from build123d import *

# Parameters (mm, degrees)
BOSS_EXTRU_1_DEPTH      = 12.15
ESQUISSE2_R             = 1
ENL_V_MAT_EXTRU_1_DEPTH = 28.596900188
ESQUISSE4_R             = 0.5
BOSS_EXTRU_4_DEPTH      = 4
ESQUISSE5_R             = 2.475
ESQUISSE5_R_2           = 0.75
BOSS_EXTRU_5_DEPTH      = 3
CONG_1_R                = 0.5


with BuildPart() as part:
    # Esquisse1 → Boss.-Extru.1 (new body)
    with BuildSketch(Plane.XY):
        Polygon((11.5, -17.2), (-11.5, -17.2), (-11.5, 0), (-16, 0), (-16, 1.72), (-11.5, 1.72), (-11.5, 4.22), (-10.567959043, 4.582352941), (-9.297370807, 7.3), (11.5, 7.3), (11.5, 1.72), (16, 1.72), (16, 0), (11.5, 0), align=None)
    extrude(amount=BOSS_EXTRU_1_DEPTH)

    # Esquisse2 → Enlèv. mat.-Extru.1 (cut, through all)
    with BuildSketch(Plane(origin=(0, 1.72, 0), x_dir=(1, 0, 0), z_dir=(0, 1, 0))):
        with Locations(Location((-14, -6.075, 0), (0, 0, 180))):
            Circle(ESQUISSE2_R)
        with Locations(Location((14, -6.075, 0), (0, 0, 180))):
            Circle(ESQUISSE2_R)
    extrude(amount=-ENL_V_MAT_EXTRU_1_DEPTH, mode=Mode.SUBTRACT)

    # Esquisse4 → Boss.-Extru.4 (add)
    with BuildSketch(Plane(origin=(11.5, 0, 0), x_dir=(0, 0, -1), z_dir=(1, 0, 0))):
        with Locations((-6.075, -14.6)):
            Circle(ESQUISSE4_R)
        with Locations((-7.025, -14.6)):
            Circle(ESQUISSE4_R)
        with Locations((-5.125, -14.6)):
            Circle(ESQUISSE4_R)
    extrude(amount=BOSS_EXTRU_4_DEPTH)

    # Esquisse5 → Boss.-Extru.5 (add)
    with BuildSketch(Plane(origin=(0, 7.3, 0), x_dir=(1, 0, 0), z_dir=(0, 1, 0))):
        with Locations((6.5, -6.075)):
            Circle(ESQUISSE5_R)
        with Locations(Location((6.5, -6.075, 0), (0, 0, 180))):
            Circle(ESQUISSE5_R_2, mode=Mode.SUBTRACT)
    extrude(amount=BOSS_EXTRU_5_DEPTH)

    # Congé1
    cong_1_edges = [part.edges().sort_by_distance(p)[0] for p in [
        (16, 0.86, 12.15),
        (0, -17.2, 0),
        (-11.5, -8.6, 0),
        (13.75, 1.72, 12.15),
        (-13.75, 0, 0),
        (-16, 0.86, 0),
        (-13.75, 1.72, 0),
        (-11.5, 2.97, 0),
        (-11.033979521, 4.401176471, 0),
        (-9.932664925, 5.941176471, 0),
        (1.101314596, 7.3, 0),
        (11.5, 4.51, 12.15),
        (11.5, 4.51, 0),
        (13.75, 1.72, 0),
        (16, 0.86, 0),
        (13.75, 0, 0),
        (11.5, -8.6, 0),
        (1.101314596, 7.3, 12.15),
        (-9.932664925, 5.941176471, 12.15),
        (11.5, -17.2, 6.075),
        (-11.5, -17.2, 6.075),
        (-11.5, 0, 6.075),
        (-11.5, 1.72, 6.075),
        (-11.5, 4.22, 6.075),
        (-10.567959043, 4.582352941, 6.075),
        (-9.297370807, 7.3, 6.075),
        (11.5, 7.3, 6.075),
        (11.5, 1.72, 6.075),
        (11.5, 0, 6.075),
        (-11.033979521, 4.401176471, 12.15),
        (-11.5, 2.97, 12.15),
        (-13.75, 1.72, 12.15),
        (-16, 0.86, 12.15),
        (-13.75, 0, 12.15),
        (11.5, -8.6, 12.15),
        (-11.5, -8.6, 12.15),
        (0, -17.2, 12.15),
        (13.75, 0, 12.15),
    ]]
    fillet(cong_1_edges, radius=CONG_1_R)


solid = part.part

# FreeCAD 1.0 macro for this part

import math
import FreeCAD as App
import Part
import Sketcher

V = App.Vector
Q = App.Units.Quantity


def edges_at(feature, points):
    """Names of the edges that pass closest to the given points."""
    edges = feature.Shape.Edges
    near = lambda p: min(range(len(edges)), key=lambda i: edges[i].distToShape(Part.Vertex(*p))[0])
    return sorted({f"Edge{near(p) + 1}" for p in points})

doc = App.newDocument("Part")
body = doc.addObject("PartDesign::Body", "Body")

# Sketch on XY plane
sketch1 = body.newObject("Sketcher::SketchObject", "Sketch")
sketch1.AttachmentSupport = (doc.getObject("XY_Plane"), [""])
sketch1.MapMode = "FlatFace"
sketch1.addGeometry([
    Part.LineSegment(V(-11.5, -17.2, 0), V(11.5, -17.2, 0)),  # 0
    Part.LineSegment(V(11.5, -17.2, 0), V(11.5, 0, 0)),  # 1
    Part.LineSegment(V(11.5, 0, 0), V(16, 0, 0)),  # 2
    Part.LineSegment(V(16, 0, 0), V(16, 1.7, 0)),  # 3
    Part.LineSegment(V(16, 1.7, 0), V(11.5, 1.7, 0)),  # 4
    Part.LineSegment(V(11.5, 1.7, 0), V(11.5, 7.3, 0)),  # 5
    Part.LineSegment(V(11.5, 7.3, 0), V(-9.3, 7.3, 0)),  # 6
    Part.LineSegment(V(-9.3, 7.3, 0), V(-10.6, 4.6, 0)),  # 7
    Part.LineSegment(V(-10.6, 4.6, 0), V(-11.5, 4.2, 0)),  # 8
    Part.LineSegment(V(-11.5, 4.2, 0), V(-11.5, 1.7, 0)),  # 9
    Part.LineSegment(V(-11.5, 1.7, 0), V(-16, 1.7, 0)),  # 10
    Part.LineSegment(V(-16, 1.7, 0), V(-16, 0, 0)),  # 11
    Part.LineSegment(V(-16, 0, 0), V(-11.5, 0, 0)),  # 12
    Part.LineSegment(V(-11.5, 0, 0), V(-11.5, -17.2, 0)),  # 13
], False)
sketch1.addConstraint([
    Sketcher.Constraint("Coincident", 0, 2, 1, 1),
    Sketcher.Constraint("Coincident", 1, 2, 2, 1),
    Sketcher.Constraint("Coincident", 2, 2, 3, 1),
    Sketcher.Constraint("Coincident", 3, 2, 4, 1),
    Sketcher.Constraint("Coincident", 4, 2, 5, 1),
    Sketcher.Constraint("Coincident", 5, 2, 6, 1),
    Sketcher.Constraint("Coincident", 6, 2, 7, 1),
    Sketcher.Constraint("Coincident", 7, 2, 8, 1),
    Sketcher.Constraint("Coincident", 8, 2, 9, 1),
    Sketcher.Constraint("Coincident", 9, 2, 10, 1),
    Sketcher.Constraint("Coincident", 10, 2, 11, 1),
    Sketcher.Constraint("Coincident", 11, 2, 12, 1),
    Sketcher.Constraint("Coincident", 12, 2, 13, 1),
    Sketcher.Constraint("Coincident", 13, 2, 0, 1),
    Sketcher.Constraint("Horizontal", 0),
    Sketcher.Constraint("Vertical", 1),
    Sketcher.Constraint("Horizontal", 2),
    Sketcher.Constraint("Vertical", 3),
    Sketcher.Constraint("Horizontal", 4),
    Sketcher.Constraint("Vertical", 5),
    Sketcher.Constraint("Horizontal", 6),
    Sketcher.Constraint("Vertical", 9),
    Sketcher.Constraint("Horizontal", 10),
    Sketcher.Constraint("Vertical", 11),
    Sketcher.Constraint("Horizontal", 12),
    Sketcher.Constraint("Vertical", 13),
    Sketcher.Constraint("Symmetric", 2, 2, 11, 2, -1, 1),
    Sketcher.Constraint("Symmetric", 4, 2, 9, 2, -2),
    Sketcher.Constraint("Symmetric", 1, 2, 12, 2, -2),
    Sketcher.Constraint("Vertical", 1, 2, 4, 2),
    Sketcher.Constraint("DistanceX", 0, 1, 0, 2, Q("23 mm")),
    Sketcher.Constraint("Distance", 7, Q("3 mm")),
    Sketcher.Constraint("Distance", 8, Q("1 mm")),
    Sketcher.Constraint("DistanceX", 2, 1, 2, 2, Q("4.5 mm")),
    Sketcher.Constraint("DistanceY", 1, 1, 1, 2, Q("17.2 mm")),
    Sketcher.Constraint("DistanceY", 9, 2, 9, 1, Q("2.5 mm")),
    Sketcher.Constraint("DistanceY", 3, 1, 3, 2, Q("1.72 mm")),
    Sketcher.Constraint("DistanceY", 5, 1, 5, 2, Q("5.58 mm")),
    Sketcher.Constraint("DistanceX", 6, 2, 6, 1, Q("20.797371 mm")),
])
pad1 = body.newObject("PartDesign::Pad", "Pad")
pad1.Profile = sketch1
pad1.Length = 12.15

# Sketch on XZ plane
sketch2 = body.newObject("Sketcher::SketchObject", "Sketch001")
sketch2.AttachmentSupport = (doc.getObject("XZ_Plane"), [""])
sketch2.MapMode = "FlatFace"
sketch2.AttachmentOffset = App.Placement(V(0, 0, -1.72), App.Rotation())
sketch2.addGeometry([
    Part.Circle(V(-14, 6.1, 0), V(0, 0, 1), 1),
    Part.Circle(V(14, 6.1, 0), V(0, 0, 1), 1),
], False)
sketch2.addConstraint([
    Sketcher.Constraint("Equal", 0, 1),
    Sketcher.Constraint("Symmetric", 0, 3, 1, 3, -2),
    Sketcher.Constraint("Diameter", 0, Q("2 mm")),
    Sketcher.Constraint("DistanceX", 0, 3, -1, 1, Q("14 mm")),
    Sketcher.Constraint("DistanceY", -1, 1, 0, 3, Q("6.075 mm")),
])
pocket1 = body.newObject("PartDesign::Pocket", "Pocket")
pocket1.Profile = sketch2
pocket1.Type = "ThroughAll"
pocket1.Reversed = True

# Sketch on YZ plane
sketch3 = body.newObject("Sketcher::SketchObject", "Sketch002")
sketch3.AttachmentSupport = (doc.getObject("YZ_Plane"), [""])
sketch3.MapMode = "FlatFace"
sketch3.AttachmentOffset = App.Placement(V(0, 0, 11.5), App.Rotation())
sketch3.addGeometry([
    Part.ArcOfCircle(Part.Circle(V(-14.6, 6.08, 0), V(0, 0, 1), 0.5), math.radians(-72), math.radians(72)),
    Part.ArcOfCircle(Part.Circle(V(-14.6, 7.03, 0), V(0, 0, 1), 0.5), math.radians(-72), math.radians(252)),
    Part.ArcOfCircle(Part.Circle(V(-14.6, 6.08, 0), V(0, 0, 1), 0.5), math.radians(108), math.radians(252)),
    Part.ArcOfCircle(Part.Circle(V(-14.6, 5.12, 0), V(0, 0, 1), 0.5), math.radians(108), math.radians(432)),
], False)
sketch3.addConstraint([
    Sketcher.Constraint("Coincident", 0, 2, 1, 1),
    Sketcher.Constraint("Coincident", 1, 2, 2, 1),
    Sketcher.Constraint("Coincident", 2, 2, 3, 1),
    Sketcher.Constraint("Coincident", 3, 2, 0, 1),
    Sketcher.Constraint("Coincident", 2, 3, 0, 3),
    Sketcher.Constraint("Equal", 0, 1),
    Sketcher.Constraint("Equal", 1, 2),
    Sketcher.Constraint("Equal", 2, 3),
    Sketcher.Constraint("Horizontal", 0, 2, 1, 2),
    Sketcher.Constraint("Horizontal", 2, 2, 3, 2),
    Sketcher.Constraint("Vertical", 1, 2, 2, 2),
    Sketcher.Constraint("Radius", 0, Q("0.5 mm")),
    Sketcher.Constraint("DistanceX", 0, 3, -1, 1, Q("14.6 mm")),
    Sketcher.Constraint("DistanceY", -1, 1, 2, 2, Q("5.6 mm")),
    Sketcher.Constraint("DistanceY", 3, 3, 1, 3, Q("1.9 mm")),
])
pad2 = body.newObject("PartDesign::Pad", "Pad001")
pad2.Profile = sketch3
pad2.Length = 4

# Sketch on XZ plane
sketch4 = body.newObject("Sketcher::SketchObject", "Sketch003")
sketch4.AttachmentSupport = (doc.getObject("XZ_Plane"), [""])
sketch4.MapMode = "FlatFace"
sketch4.AttachmentOffset = App.Placement(V(0, 0, -7.3), App.Rotation())
sketch4.addGeometry([
    Part.Circle(V(6.5, 6.1, 0), V(0, 0, 1), 2.5),
    Part.Circle(V(6.5, 6.1, 0), V(0, 0, 1), 0.8),
], False)
sketch4.addConstraint([
    Sketcher.Constraint("Coincident", 1, 3, 0, 3),
    Sketcher.Constraint("Diameter", 1, Q("1.5 mm")),
    Sketcher.Constraint("Diameter", 0, Q("4.95 mm")),
    Sketcher.Constraint("DistanceX", -1, 1, 0, 3, Q("6.5 mm")),
    Sketcher.Constraint("DistanceY", -1, 1, 0, 3, Q("6.075 mm")),
])
pad3 = body.newObject("PartDesign::Pad", "Pad002")
pad3.Profile = sketch4
pad3.Length = 3
pad3.Reversed = True
doc.recompute()

fillet = body.newObject("PartDesign::Fillet", "Fillet")
fillet.Base = (pad3, edges_at(pad3, [
    (16, 0.86, 12.15),
    (0, -17.2, 0),
    (-11.5, -8.6, 0),
    (13.75, 1.72, 12.15),
    (-13.75, 0, 0),
    (-16, 0.86, 0),
    (-13.75, 1.72, 0),
    (-11.5, 2.97, 0),
    (-11.034, 4.401, 0),
    (-9.933, 5.941, 0),
    (1.101, 7.3, 0),
    (11.5, 4.51, 12.15),
    (11.5, 4.51, 0),
    (13.75, 1.72, 0),
    (16, 0.86, 0),
    (13.75, 0, 0),
    (11.5, -8.6, 0),
    (1.101, 7.3, 12.15),
    (-9.933, 5.941, 12.15),
    (11.5, -17.2, 6.075),
    (-11.5, -17.2, 6.075),
    (-11.5, 0, 6.075),
    (-11.5, 1.72, 6.075),
    (-11.5, 4.22, 6.075),
    (-10.568, 4.582, 6.075),
    (-9.297, 7.3, 6.075),
    (11.5, 7.3, 6.075),
    (11.5, 1.72, 6.075),
    (11.5, 0, 6.075),
    (-11.034, 4.401, 12.15),
    (-11.5, 2.97, 12.15),
    (-13.75, 1.72, 12.15),
    (-16, 0.86, 12.15),
    (-13.75, 0, 12.15),
    (11.5, -8.6, 12.15),
    (-11.5, -8.6, 12.15),
    (0, -17.2, 12.15),
    (13.75, 0, 12.15),
]))
fillet.Radius = 0.5

doc.recompute()
